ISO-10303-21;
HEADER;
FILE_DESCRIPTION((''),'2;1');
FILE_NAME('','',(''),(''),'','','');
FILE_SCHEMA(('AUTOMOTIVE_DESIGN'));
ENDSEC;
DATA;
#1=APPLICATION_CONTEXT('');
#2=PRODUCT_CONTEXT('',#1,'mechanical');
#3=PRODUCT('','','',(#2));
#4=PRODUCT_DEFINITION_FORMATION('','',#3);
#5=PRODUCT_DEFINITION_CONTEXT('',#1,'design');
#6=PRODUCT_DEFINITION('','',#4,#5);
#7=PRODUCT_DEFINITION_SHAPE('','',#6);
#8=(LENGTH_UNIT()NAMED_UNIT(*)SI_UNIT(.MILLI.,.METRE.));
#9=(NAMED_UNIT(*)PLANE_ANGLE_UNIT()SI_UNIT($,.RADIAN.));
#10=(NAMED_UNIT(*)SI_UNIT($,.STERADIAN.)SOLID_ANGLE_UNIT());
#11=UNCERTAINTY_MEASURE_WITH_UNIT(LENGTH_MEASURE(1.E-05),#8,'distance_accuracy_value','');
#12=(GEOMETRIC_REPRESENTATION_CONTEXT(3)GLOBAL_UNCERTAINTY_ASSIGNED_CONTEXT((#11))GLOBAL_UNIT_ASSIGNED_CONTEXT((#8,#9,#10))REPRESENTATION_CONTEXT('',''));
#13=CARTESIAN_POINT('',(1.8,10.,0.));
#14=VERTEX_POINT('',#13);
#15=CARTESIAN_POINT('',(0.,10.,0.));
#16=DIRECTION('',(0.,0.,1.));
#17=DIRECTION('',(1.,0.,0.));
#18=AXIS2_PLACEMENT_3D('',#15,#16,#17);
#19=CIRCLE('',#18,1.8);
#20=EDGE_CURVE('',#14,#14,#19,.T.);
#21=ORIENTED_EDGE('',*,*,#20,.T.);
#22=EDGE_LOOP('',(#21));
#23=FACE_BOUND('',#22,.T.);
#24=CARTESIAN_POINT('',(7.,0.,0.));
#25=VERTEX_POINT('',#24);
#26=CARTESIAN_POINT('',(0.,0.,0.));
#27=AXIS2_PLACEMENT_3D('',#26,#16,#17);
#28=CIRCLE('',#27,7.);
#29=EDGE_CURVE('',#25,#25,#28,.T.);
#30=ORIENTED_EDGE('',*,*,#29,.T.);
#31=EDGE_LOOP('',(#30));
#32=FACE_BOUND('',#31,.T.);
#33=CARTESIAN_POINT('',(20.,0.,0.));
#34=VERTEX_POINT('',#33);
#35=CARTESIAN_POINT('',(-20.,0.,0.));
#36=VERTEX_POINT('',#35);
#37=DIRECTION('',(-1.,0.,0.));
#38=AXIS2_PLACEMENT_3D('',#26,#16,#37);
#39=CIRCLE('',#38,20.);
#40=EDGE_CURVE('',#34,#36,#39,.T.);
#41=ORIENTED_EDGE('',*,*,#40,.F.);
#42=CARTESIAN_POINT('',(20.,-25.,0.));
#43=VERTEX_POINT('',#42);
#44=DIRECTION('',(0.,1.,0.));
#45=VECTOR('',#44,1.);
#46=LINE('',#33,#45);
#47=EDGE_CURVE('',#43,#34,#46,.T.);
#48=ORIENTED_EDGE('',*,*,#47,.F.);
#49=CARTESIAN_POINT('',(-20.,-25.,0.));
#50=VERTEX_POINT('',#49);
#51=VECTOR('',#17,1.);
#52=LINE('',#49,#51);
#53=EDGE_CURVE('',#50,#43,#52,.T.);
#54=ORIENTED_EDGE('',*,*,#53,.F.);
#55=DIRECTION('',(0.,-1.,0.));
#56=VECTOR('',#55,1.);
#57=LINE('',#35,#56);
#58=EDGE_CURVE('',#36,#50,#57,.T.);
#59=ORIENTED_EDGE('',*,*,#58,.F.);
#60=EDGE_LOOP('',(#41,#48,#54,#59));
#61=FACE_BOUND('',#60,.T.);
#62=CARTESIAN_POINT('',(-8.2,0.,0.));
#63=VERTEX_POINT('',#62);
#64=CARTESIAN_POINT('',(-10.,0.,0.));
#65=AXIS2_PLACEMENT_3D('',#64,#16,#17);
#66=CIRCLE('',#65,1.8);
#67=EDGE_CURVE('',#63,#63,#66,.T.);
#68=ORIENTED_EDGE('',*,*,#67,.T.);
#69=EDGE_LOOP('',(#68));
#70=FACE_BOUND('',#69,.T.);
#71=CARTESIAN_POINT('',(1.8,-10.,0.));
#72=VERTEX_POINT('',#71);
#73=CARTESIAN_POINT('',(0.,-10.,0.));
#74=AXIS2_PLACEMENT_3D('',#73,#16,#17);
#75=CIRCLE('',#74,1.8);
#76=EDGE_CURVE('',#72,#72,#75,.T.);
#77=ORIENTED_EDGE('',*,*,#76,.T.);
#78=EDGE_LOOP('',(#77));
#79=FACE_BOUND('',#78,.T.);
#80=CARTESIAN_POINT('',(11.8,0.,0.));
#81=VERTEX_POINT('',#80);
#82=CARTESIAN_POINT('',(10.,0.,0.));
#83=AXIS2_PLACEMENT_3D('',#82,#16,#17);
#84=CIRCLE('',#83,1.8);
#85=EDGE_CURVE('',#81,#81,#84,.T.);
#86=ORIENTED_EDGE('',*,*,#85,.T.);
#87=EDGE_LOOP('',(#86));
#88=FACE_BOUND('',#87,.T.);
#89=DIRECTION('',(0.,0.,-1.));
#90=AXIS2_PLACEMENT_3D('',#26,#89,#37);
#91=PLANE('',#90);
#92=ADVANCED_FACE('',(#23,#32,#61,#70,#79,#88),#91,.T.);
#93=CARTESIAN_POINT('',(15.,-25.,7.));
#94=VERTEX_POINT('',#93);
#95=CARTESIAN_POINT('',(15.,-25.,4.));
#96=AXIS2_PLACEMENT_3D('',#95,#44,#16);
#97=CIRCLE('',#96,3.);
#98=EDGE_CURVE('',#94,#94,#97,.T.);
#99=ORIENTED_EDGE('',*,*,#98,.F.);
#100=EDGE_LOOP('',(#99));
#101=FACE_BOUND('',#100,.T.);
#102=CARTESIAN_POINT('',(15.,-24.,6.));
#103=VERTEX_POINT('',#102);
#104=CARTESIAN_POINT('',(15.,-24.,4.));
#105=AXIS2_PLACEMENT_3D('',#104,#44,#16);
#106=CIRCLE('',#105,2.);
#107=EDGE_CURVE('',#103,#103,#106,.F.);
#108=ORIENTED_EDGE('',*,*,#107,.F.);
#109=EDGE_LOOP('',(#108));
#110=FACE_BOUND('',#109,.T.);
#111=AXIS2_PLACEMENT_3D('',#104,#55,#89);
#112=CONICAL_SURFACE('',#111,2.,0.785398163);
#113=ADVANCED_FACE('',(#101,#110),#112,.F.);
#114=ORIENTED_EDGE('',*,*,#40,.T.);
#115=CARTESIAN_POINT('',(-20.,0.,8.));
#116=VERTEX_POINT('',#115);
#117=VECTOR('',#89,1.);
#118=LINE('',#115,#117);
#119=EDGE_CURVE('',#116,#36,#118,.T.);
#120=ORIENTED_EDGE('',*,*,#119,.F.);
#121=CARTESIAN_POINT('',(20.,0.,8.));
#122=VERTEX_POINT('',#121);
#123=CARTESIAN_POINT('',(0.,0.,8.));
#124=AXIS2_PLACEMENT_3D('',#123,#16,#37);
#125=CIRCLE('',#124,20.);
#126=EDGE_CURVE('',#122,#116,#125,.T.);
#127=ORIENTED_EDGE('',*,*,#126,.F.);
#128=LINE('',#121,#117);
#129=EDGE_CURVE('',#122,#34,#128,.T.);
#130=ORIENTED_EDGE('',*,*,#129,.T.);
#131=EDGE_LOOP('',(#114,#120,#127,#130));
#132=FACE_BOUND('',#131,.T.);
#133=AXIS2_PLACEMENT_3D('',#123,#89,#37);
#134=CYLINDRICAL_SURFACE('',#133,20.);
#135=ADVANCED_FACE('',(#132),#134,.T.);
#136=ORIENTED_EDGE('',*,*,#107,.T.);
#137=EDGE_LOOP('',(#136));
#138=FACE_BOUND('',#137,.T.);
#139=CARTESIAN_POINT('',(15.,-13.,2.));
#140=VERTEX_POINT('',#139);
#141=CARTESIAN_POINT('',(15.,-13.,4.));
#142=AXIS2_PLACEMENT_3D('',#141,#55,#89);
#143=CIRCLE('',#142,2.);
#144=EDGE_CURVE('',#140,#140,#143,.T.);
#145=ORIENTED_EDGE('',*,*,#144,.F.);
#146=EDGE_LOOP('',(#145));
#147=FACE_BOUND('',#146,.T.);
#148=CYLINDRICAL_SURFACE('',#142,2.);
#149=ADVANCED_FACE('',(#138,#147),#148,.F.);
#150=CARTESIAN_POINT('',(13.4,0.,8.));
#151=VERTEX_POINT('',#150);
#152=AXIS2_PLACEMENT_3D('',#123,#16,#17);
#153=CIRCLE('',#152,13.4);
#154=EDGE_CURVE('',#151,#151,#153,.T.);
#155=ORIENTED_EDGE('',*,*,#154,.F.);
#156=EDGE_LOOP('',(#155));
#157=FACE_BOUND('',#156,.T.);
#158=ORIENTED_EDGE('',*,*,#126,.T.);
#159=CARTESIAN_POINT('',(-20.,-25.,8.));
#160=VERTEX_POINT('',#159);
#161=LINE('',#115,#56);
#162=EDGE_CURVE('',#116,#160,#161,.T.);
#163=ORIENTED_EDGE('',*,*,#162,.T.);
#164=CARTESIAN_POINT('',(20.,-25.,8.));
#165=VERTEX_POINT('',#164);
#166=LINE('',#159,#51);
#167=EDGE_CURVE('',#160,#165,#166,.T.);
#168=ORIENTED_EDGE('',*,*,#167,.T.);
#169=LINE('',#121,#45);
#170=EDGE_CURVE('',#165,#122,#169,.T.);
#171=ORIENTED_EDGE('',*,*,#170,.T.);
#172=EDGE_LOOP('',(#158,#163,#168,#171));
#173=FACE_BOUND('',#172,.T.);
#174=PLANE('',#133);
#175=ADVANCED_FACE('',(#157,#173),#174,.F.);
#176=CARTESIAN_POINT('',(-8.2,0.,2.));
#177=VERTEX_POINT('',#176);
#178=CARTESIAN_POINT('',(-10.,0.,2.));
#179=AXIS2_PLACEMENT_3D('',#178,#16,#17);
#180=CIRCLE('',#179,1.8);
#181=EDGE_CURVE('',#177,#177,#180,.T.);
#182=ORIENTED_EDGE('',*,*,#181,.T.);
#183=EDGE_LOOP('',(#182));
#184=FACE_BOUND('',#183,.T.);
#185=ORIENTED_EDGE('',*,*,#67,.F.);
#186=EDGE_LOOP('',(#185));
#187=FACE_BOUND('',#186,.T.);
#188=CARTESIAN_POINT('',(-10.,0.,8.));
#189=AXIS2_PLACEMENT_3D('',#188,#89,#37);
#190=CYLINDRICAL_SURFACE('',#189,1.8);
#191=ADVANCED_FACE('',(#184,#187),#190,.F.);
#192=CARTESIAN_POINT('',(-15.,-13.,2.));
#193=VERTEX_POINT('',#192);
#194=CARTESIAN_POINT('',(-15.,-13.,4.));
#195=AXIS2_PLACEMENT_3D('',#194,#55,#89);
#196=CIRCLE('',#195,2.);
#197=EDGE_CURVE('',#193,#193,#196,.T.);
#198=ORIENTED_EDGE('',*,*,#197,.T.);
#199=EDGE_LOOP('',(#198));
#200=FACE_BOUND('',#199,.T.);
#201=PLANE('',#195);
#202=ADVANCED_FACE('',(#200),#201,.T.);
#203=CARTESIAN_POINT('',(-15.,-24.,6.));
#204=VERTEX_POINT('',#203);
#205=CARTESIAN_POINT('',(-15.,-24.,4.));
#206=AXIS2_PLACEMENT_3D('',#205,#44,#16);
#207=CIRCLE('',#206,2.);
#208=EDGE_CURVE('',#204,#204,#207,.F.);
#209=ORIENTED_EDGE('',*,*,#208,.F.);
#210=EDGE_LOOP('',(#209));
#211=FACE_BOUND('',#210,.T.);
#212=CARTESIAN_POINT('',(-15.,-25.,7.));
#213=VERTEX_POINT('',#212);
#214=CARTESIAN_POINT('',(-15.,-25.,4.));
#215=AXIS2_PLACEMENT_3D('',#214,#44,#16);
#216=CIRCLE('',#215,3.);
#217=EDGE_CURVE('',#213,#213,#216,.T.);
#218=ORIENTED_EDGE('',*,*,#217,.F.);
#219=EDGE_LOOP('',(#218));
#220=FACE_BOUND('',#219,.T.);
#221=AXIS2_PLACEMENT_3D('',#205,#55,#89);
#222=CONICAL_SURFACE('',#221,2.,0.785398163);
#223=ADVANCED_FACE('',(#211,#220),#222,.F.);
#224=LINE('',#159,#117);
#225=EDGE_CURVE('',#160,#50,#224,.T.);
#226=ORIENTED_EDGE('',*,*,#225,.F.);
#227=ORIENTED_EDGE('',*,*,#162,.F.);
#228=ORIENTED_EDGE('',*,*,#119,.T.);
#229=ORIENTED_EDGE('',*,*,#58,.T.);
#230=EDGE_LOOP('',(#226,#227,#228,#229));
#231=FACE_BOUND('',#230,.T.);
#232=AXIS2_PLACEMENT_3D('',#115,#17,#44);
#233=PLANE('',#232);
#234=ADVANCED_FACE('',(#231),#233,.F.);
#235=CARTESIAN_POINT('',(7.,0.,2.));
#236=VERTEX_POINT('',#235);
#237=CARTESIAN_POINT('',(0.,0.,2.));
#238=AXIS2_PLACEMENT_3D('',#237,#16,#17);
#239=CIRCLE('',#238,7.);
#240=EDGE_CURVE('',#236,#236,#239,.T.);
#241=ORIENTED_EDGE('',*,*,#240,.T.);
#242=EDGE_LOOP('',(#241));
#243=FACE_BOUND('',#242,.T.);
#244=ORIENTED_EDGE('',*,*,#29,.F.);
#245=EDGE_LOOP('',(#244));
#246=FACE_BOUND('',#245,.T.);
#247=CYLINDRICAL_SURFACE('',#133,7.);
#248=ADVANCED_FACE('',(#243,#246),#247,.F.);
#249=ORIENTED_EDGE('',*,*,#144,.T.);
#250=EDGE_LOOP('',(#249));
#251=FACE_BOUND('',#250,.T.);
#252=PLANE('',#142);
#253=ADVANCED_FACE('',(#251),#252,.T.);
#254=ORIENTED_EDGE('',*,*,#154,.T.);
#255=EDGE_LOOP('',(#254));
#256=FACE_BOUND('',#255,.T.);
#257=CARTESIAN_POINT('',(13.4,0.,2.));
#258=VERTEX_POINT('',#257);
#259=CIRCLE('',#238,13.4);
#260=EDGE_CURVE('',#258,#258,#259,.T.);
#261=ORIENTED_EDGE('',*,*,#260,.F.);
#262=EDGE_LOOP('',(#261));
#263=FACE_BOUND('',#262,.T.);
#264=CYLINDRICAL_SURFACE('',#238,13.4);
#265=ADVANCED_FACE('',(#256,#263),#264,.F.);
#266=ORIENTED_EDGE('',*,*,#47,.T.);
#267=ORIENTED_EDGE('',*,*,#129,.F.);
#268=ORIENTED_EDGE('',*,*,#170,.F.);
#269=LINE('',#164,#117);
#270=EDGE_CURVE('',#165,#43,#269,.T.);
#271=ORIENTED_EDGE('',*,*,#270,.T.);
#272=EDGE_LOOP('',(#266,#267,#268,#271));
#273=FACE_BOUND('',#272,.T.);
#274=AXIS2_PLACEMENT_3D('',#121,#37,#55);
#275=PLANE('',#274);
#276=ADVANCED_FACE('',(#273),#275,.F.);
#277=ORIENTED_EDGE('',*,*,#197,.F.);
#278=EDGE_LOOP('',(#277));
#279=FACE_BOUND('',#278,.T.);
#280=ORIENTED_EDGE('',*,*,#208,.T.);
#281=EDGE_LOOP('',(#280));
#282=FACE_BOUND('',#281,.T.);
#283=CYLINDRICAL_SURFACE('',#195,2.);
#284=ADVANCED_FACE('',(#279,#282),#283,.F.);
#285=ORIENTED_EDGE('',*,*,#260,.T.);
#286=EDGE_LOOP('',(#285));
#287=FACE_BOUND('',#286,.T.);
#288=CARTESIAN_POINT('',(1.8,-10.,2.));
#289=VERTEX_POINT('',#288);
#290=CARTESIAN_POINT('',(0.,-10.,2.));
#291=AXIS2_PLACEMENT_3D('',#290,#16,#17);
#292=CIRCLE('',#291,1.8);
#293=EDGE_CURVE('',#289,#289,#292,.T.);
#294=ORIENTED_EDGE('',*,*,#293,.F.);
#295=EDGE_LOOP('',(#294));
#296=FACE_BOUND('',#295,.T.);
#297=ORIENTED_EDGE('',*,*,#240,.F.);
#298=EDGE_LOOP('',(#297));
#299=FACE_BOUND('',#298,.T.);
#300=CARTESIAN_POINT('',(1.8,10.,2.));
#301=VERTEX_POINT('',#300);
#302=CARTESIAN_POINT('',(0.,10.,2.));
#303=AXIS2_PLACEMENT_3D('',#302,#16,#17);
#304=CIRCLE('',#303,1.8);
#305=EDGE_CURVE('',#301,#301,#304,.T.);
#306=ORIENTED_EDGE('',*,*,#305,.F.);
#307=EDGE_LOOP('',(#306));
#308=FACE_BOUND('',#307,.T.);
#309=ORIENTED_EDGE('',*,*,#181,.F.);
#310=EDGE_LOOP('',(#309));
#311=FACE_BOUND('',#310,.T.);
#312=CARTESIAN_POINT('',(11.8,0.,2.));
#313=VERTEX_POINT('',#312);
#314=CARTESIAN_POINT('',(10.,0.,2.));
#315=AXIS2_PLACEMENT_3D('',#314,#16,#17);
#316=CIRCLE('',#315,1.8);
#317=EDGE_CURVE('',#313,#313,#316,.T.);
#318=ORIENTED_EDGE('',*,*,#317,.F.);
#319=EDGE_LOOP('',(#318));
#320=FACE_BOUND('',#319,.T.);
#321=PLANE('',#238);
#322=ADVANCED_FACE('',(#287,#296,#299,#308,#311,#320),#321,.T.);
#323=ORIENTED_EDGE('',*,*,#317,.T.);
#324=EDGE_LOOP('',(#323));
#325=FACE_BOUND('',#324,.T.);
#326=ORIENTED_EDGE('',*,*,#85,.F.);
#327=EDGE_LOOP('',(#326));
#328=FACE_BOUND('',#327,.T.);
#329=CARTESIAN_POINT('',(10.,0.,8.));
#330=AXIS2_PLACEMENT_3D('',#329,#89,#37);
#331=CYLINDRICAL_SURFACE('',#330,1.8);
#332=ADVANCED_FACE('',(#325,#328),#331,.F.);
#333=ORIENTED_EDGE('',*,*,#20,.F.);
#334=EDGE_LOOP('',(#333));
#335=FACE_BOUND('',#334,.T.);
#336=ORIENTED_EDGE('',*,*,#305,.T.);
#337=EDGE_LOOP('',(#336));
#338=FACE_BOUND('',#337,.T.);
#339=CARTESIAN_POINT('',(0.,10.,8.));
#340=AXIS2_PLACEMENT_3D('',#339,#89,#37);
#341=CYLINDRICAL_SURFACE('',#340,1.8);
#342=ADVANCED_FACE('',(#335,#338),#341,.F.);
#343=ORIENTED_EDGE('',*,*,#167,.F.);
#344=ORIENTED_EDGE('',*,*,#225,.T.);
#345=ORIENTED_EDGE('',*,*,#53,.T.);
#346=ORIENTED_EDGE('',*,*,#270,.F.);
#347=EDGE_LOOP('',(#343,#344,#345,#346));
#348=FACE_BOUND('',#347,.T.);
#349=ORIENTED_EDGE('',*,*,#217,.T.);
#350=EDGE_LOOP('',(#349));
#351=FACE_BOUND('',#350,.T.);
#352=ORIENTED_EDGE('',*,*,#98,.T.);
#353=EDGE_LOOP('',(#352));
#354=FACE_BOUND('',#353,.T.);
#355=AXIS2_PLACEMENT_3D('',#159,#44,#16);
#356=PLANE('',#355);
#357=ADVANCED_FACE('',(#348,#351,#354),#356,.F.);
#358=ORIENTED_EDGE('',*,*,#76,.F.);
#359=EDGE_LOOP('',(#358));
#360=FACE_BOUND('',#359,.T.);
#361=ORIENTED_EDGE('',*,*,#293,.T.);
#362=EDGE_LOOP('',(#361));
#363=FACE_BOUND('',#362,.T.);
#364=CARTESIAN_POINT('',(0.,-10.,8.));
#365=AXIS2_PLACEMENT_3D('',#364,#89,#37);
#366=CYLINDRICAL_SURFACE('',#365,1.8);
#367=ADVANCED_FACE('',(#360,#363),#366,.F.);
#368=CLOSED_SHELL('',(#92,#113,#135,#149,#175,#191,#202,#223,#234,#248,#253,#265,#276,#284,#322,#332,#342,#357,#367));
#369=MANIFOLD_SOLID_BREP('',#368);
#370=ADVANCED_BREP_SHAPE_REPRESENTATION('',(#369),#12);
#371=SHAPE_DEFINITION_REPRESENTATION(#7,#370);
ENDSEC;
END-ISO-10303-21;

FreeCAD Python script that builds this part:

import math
import FreeCAD as App
import Part
import Sketcher

V = App.Vector
Q = App.Units.Quantity


def edges_at(feature, points):
    """Names of the edges that pass closest to the given points."""
    edges = feature.Shape.Edges
    near = lambda p: min(range(len(edges)), key=lambda i: edges[i].distToShape(Part.Vertex(*p))[0])
    return sorted({f"Edge{near(p) + 1}" for p in points})

doc = App.newDocument("Part")
body = doc.addObject("PartDesign::Body", "Body")

# Sketch on XY plane
sketch1 = body.newObject("Sketcher::SketchObject", "Sketch")
sketch1.AttachmentSupport = (doc.getObject("XY_Plane"), [""])
sketch1.MapMode = "FlatFace"
sketch1.addGeometry([
    Part.LineSegment(V(-20, 0, 0), V(-20, -25, 0)),  # 0
    Part.LineSegment(V(-20, -25, 0), V(20, -25, 0)),  # 1
    Part.LineSegment(V(20, -25, 0), V(20, 0, 0)),  # 2
    Part.ArcOfCircle(Part.Circle(V(0, 0, 0), V(0, 0, 1), 20), math.radians(0), math.radians(180)),  # 3
    Part.Circle(V(-10, 0, 0), V(0, 0, 1), 1.8),  # 4
    Part.Circle(V(0, -10, 0), V(0, 0, 1), 1.8),  # 5
    Part.Circle(V(0, 0, 0), V(0, 0, 1), 7),  # 6
    Part.Circle(V(10, 0, 0), V(0, 0, 1), 1.8),  # 7
    Part.Circle(V(0, 10, 0), V(0, 0, 1), 1.8),  # 8
], False)
sketch1.addConstraint([
    Sketcher.Constraint("Coincident", 0, 2, 1, 1),
    Sketcher.Constraint("Coincident", 1, 2, 2, 1),
    Sketcher.Constraint("Tangent", 2, 2, 3, 1),
    Sketcher.Constraint("Tangent", 3, 2, 0, 1),
    Sketcher.Constraint("Vertical", 0),
    Sketcher.Constraint("Horizontal", 1),
    Sketcher.Constraint("Vertical", 2),
    Sketcher.Constraint("Coincident", 3, 3, -1, 1),
    Sketcher.Constraint("Coincident", 6, 3, -1, 1),
    Sketcher.Constraint("Equal", 4, 5),
    Sketcher.Constraint("Equal", 5, 7),
    Sketcher.Constraint("Equal", 7, 8),
    Sketcher.Constraint("Symmetric", 4, 3, 7, 3, -1, 1),
    Sketcher.Constraint("Symmetric", 5, 3, 8, 3, -1, 1),
    Sketcher.Constraint("PointOnObject", 4, 3, -1),
    Sketcher.Constraint("PointOnObject", 5, 3, -2),
    Sketcher.Constraint("Diameter", 6, Q("14 mm")),
    Sketcher.Constraint("Radius", 3, Q("20 mm")),
    Sketcher.Constraint("Diameter", 4, Q("3.6 mm")),
    Sketcher.Constraint("DistanceY", 0, 2, 0, 1, Q("25 mm")),
    Sketcher.Constraint("DistanceX", 4, 3, -1, 1, Q("10 mm")),
    Sketcher.Constraint("DistanceY", 5, 3, -1, 1, Q("10 mm")),
])
pad1 = body.newObject("PartDesign::Pad", "Pad")
pad1.Profile = sketch1
pad1.Length = 8

# Sketch on XY plane
sketch2 = body.newObject("Sketcher::SketchObject", "Sketch001")
sketch2.AttachmentSupport = (doc.getObject("XY_Plane"), [""])
sketch2.MapMode = "FlatFace"
sketch2.AttachmentOffset = App.Placement(V(0, 0, 8), App.Rotation())
sketch2.addGeometry(Part.Circle(V(0, 0, 0), V(0, 0, 1), 13.4), False)
sketch2.addConstraint([
    Sketcher.Constraint("Coincident", 0, 3, -1, 1),
    Sketcher.Constraint("Diameter", 0, Q("26.8 mm")),
])
pocket1 = body.newObject("PartDesign::Pocket", "Pocket")
pocket1.Profile = sketch2
pocket1.Length = 6

# Sketch on XZ plane
sketch3 = body.newObject("Sketcher::SketchObject", "Sketch002")
sketch3.AttachmentSupport = (doc.getObject("XZ_Plane"), [""])
sketch3.MapMode = "FlatFace"
sketch3.AttachmentOffset = App.Placement(V(0, 0, 25), App.Rotation())
sketch3.addGeometry([
    Part.Circle(V(-15, 4, 0), V(0, 0, 1), 2),
    Part.Circle(V(15, 4, 0), V(0, 0, 1), 2),
], False)
sketch3.addConstraint([
    Sketcher.Constraint("Equal", 0, 1),
    Sketcher.Constraint("Symmetric", 0, 3, 1, 3, -2),
    Sketcher.Constraint("Diameter", 0, Q("4 mm")),
    Sketcher.Constraint("DistanceX", 0, 3, -1, 1, Q("15 mm")),
    Sketcher.Constraint("DistanceY", -1, 1, 0, 3, Q("4 mm")),
])
pocket2 = body.newObject("PartDesign::Pocket", "Pocket001")
pocket2.Profile = sketch3
pocket2.Length = 12
doc.recompute()

chamfer = body.newObject("PartDesign::Chamfer", "Chamfer")
chamfer.Base = (pocket2, edges_at(pocket2, [(-17, -25, 4), (13, -25, 4)]))
chamfer.Size = 1

doc.recompute()
